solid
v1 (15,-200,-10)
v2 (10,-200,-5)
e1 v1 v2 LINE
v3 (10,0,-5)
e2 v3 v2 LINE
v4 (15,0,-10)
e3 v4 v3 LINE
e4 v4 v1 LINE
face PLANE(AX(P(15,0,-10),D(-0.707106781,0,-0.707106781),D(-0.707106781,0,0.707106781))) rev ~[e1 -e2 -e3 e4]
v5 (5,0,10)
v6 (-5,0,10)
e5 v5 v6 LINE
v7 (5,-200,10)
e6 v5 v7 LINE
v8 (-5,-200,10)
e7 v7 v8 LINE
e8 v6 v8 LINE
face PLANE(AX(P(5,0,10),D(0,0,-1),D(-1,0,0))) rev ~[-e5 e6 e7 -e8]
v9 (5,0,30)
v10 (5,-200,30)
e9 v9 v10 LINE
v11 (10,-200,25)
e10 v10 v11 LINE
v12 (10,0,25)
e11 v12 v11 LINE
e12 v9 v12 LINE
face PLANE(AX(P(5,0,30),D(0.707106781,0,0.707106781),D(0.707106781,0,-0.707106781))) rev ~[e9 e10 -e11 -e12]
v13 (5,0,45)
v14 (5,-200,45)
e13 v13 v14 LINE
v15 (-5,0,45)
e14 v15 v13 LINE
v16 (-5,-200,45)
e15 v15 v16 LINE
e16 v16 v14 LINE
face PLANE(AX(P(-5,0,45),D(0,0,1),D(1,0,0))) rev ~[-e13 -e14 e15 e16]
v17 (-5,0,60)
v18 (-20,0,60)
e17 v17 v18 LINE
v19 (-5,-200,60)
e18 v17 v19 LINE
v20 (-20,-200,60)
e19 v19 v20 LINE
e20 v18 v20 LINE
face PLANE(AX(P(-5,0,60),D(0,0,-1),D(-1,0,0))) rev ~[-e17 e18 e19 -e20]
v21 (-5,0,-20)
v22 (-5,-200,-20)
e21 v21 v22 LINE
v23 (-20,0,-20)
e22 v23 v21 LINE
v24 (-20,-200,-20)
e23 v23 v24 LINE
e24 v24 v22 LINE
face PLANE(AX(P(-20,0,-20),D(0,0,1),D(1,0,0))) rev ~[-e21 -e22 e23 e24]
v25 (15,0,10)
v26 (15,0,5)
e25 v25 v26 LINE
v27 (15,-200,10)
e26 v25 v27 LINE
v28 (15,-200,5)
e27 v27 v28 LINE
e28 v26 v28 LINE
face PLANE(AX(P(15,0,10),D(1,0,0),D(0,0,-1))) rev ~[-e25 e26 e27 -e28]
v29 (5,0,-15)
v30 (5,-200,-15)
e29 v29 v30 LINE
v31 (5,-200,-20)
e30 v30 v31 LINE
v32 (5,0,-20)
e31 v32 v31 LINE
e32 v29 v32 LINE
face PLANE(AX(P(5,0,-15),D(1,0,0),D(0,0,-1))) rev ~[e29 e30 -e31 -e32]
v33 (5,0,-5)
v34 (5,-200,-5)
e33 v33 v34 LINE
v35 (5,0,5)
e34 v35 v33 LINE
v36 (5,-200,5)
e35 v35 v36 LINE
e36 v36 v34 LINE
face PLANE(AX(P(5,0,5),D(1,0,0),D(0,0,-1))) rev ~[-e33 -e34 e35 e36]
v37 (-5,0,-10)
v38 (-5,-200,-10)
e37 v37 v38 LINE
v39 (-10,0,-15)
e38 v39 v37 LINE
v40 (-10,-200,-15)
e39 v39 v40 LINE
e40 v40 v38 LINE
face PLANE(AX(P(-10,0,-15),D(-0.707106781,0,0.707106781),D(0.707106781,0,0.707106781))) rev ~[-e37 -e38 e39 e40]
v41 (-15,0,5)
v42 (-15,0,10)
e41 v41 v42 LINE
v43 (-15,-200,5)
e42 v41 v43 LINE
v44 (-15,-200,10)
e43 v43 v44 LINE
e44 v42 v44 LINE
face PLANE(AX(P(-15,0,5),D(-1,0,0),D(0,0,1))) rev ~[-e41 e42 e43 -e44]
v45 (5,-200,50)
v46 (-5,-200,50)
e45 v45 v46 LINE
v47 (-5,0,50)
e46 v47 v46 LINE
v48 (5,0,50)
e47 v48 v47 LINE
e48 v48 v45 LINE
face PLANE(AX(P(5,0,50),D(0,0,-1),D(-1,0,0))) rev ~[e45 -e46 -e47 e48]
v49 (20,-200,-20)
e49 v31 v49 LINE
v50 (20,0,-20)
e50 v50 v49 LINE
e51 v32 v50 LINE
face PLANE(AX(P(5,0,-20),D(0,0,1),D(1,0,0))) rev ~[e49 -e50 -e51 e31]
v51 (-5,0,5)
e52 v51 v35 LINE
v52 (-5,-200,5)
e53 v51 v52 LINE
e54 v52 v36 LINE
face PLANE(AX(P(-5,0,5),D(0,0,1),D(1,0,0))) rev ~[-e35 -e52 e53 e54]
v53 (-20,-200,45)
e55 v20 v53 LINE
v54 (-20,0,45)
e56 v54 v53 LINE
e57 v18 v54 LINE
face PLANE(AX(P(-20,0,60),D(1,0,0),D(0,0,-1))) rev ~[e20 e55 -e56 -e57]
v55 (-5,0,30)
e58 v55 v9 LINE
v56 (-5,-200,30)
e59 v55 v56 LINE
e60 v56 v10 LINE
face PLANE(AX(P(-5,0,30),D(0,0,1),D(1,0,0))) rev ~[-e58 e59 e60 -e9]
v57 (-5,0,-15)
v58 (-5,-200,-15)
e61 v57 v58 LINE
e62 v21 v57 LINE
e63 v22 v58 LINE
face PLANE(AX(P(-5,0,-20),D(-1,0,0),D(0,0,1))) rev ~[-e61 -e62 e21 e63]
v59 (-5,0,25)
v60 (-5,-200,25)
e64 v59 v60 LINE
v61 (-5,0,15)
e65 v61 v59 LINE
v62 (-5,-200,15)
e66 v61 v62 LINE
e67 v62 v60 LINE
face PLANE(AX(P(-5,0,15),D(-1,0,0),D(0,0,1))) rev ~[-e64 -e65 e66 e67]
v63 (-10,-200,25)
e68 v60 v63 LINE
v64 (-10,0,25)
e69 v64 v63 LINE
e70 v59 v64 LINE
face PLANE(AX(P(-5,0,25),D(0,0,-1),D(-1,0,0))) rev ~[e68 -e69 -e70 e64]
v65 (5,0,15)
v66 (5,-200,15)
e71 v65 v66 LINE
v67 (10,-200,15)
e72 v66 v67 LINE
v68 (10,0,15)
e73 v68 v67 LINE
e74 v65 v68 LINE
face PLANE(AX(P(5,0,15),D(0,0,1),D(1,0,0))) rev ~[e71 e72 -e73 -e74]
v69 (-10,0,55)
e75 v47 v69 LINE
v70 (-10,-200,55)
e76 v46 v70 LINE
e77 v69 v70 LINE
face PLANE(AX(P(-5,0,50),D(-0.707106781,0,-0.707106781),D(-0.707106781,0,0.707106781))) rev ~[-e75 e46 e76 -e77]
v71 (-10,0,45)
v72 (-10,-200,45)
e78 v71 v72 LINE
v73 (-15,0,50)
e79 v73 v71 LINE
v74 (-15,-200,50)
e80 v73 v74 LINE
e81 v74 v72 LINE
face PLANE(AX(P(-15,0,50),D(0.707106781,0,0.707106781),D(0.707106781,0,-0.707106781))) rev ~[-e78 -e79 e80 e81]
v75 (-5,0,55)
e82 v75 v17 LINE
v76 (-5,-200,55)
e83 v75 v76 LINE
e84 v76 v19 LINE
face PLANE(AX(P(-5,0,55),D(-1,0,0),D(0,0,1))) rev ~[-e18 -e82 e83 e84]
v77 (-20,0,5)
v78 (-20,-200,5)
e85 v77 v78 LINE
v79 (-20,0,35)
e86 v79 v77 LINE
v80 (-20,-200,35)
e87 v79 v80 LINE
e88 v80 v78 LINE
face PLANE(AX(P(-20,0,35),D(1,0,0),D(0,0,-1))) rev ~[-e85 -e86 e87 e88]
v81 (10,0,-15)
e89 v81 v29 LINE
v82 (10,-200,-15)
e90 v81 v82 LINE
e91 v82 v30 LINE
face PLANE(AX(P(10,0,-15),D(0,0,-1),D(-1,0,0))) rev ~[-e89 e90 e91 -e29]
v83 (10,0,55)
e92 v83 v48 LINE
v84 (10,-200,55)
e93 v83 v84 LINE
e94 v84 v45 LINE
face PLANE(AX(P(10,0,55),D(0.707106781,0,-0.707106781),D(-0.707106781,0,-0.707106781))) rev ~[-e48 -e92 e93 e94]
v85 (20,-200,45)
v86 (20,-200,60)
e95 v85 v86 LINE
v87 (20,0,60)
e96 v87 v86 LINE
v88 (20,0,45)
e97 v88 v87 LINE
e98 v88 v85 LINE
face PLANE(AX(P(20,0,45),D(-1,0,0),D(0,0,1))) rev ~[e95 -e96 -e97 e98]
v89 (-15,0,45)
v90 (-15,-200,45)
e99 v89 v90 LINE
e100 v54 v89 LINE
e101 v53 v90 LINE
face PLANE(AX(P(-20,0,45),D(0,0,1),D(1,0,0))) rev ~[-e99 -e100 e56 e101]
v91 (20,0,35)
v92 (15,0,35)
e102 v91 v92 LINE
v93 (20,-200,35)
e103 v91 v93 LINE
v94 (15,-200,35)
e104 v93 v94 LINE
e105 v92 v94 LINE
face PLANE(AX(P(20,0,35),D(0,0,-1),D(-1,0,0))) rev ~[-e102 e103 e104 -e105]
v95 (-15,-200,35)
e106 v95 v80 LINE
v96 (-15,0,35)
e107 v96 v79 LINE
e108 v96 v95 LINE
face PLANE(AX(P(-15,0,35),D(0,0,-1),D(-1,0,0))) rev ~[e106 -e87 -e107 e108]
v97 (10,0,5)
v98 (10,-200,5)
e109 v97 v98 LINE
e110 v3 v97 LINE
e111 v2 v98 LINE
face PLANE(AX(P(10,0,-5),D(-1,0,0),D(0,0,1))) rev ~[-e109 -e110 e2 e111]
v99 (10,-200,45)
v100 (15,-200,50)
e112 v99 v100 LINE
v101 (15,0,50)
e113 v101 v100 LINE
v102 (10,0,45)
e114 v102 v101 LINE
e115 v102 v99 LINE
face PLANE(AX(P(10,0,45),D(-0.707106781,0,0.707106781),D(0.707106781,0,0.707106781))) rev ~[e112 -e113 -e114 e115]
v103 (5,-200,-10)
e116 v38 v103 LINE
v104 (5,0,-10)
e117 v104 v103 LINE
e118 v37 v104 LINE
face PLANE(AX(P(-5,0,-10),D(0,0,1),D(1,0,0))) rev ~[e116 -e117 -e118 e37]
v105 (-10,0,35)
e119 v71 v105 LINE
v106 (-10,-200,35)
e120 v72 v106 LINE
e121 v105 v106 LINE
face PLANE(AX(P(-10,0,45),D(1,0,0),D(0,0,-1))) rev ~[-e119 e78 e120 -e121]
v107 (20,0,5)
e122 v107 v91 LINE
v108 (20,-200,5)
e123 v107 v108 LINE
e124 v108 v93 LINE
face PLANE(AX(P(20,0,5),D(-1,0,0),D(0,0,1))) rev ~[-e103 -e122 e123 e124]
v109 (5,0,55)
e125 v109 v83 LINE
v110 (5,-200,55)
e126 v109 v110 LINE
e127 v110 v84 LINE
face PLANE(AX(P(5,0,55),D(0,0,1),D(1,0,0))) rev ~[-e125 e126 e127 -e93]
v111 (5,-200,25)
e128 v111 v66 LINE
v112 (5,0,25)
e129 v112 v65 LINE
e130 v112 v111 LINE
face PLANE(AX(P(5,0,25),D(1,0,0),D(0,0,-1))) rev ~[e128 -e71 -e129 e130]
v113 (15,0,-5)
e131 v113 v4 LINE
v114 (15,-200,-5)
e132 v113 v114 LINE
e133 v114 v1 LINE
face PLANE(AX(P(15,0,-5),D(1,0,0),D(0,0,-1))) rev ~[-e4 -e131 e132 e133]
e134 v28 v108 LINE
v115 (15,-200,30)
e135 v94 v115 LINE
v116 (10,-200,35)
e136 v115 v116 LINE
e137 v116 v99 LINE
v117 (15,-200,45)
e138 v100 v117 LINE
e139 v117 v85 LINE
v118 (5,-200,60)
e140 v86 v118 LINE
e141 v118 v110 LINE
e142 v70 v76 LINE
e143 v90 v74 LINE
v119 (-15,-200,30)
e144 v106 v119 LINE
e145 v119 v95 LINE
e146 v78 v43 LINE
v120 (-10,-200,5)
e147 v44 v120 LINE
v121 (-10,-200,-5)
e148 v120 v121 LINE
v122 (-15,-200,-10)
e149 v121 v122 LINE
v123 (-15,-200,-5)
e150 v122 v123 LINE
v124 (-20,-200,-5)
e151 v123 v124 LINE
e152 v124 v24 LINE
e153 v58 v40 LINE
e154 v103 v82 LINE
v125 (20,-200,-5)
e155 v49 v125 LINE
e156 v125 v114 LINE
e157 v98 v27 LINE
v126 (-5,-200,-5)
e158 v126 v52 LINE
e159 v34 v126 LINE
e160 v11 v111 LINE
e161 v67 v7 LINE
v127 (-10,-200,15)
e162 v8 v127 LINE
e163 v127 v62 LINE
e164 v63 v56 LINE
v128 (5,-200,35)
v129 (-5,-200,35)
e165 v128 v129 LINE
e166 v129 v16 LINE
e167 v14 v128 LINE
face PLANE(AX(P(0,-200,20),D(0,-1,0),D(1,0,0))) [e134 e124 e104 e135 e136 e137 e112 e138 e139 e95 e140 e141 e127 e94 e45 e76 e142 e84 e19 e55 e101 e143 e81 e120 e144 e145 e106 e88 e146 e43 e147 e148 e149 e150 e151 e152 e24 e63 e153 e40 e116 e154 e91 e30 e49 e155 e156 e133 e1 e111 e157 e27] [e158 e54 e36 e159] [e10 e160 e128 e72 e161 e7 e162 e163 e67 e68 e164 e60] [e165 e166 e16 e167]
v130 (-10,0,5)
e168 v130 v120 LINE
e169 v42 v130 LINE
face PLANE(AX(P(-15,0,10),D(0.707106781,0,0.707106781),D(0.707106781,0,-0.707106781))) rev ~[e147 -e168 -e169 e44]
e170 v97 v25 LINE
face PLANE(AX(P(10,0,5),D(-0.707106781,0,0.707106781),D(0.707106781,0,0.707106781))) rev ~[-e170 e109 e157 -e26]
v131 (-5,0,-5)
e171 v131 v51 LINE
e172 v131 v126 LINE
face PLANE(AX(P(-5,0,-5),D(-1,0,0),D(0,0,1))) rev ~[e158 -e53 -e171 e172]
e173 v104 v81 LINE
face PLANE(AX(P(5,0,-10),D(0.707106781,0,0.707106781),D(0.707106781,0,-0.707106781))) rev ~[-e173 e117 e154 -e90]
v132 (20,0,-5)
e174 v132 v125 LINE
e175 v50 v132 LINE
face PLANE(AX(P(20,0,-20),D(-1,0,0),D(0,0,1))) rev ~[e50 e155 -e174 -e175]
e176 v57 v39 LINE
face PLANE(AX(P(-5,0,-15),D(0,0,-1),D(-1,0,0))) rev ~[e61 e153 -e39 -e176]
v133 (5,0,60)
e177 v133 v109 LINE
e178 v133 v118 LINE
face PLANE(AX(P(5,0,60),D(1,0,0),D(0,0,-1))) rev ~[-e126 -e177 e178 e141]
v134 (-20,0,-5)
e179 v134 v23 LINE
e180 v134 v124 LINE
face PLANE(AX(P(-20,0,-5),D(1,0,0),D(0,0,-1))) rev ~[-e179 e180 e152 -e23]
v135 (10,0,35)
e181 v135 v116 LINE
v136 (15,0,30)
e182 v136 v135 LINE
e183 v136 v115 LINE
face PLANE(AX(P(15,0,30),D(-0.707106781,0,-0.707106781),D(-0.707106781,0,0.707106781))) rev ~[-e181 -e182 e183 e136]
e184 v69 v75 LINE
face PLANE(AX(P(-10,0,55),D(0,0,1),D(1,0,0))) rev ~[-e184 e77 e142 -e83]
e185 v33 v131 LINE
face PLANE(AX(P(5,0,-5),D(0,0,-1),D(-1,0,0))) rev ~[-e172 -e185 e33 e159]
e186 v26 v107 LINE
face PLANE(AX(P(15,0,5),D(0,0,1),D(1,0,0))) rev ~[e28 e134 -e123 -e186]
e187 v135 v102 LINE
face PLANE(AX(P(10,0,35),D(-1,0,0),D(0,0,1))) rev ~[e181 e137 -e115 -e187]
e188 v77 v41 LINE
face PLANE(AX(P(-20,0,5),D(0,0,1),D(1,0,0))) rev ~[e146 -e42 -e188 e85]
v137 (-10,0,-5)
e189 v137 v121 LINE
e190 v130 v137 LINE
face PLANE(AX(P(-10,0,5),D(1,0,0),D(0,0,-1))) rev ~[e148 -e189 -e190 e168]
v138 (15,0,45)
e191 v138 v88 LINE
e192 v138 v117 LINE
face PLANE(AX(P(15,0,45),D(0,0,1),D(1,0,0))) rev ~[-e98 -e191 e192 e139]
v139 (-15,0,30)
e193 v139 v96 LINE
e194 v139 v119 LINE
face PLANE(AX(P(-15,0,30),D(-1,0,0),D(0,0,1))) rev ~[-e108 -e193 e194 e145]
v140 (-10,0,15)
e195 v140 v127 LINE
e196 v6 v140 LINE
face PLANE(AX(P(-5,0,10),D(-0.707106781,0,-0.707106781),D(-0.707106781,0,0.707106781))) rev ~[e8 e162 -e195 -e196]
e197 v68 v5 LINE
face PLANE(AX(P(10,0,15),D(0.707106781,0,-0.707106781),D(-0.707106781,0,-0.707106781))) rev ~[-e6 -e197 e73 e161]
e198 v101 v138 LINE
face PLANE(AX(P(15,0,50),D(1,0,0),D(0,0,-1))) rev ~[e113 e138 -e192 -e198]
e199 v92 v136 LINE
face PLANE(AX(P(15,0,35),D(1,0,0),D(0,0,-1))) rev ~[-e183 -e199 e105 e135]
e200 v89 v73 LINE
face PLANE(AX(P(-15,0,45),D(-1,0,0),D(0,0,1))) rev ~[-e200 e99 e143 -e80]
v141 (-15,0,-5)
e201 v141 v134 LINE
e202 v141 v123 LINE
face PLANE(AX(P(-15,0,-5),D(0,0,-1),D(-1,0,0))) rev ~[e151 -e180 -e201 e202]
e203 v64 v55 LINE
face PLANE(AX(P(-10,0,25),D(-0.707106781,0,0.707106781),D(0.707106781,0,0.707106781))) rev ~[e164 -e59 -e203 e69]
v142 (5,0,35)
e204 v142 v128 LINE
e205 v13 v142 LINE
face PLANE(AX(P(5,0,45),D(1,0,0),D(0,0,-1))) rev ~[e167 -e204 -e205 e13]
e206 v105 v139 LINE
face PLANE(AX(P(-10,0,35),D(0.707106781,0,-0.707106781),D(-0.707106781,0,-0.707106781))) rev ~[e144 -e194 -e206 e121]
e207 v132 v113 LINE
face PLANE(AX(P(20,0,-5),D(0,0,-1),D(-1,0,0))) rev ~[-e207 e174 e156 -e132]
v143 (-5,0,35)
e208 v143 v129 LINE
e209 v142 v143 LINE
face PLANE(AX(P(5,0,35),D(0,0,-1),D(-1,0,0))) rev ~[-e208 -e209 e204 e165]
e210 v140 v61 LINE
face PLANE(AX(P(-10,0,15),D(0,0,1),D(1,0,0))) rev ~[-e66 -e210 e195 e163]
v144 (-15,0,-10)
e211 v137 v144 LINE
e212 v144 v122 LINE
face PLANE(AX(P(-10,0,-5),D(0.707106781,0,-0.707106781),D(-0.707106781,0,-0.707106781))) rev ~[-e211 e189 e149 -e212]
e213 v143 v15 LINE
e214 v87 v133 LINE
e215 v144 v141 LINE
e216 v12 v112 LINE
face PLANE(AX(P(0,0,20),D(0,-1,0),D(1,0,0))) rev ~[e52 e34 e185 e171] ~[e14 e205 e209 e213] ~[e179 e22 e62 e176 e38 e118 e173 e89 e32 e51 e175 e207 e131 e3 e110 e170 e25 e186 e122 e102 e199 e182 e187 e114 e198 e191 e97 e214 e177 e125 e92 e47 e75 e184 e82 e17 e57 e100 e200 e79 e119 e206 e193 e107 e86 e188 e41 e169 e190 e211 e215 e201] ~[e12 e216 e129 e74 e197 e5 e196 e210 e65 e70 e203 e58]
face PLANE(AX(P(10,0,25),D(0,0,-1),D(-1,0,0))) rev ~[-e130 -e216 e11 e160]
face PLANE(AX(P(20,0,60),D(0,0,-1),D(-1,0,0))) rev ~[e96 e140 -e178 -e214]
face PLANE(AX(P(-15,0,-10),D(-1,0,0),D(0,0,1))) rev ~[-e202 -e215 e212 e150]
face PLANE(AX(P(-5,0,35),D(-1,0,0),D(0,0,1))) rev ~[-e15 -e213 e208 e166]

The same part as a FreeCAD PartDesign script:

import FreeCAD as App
import Part
import Sketcher
from FreeCAD import Vector
Q = App.Units.Quantity


def add_polygon(sketch, points):
    """Adds a closed chain of lines whose ends are joined by coincident constraints."""
    first, n = sketch.GeometryCount, len(points)
    for a, b in zip(points, points[1:] + points[:1]):
        sketch.addGeometry(Part.LineSegment(App.Vector(*a, 0), App.Vector(*b, 0)), False)
    for i in range(n):
        sketch.addConstraint(Sketcher.Constraint("Coincident", first + i, 2, first + (i + 1) % n, 1))

doc = App.newDocument("Part")
params = doc.addObject("Spreadsheet::Sheet", "Params")
for row, (alias, value) in enumerate([
    ("sketch1_width", "15 mm"),
    ("sketch1_width2", "10 mm"),
    ("pad1_length", "200 mm"),
], start=1):
    params.set(f"A{row}", alias)
    params.set(f"B{row}", "=" + value)
    params.setAlias(f"B{row}", alias)

body = doc.addObject("PartDesign::Body", "Body")

# Sketch on XZ plane
sketch1 = body.newObject("Sketcher::SketchObject", "Sketch")
sketch1.AttachmentSupport = (doc.getObject("XZ_Plane"), [""])
sketch1.MapMode = "FlatFace"
add_polygon(sketch1, [(5, -20), (20, -20), (20, -5), (15, -5), (15, -10), (10, -5), (10, 5), (15, 10), (15, 5), (20, 5), (20, 35), (15, 35), (15, 30), (10, 35), (10, 45), (15, 50), (15, 45), (20, 45), (20, 60), (5, 60), (5, 55), (10, 55), (5, 50), (-5, 50), (-10, 55), (-5, 55), (-5, 60), (-20, 60), (-20, 45), (-15, 45), (-15, 50), (-10, 45), (-10, 35), (-15, 30), (-15, 35), (-20, 35), (-20, 5), (-15, 5), (-15, 10), (-10, 5), (-10, -5), (-15, -10), (-15, -5), (-20, -5), (-20, -20), (-5, -20), (-5, -15), (-10, -15), (-5, -10), (5, -10), (10, -15), (5, -15)])  # lines 0-51
add_polygon(sketch1, [(-5, -5), (-5, 5), (5, 5), (5, -5)])  # lines 52-55
add_polygon(sketch1, [(-10, 15), (-5, 15), (-5, 25), (-10, 25), (-5, 30), (5, 30), (10, 25), (5, 25), (5, 15), (10, 15), (5, 10), (-5, 10)])  # lines 56-67
add_polygon(sketch1, [(-5, 35), (-5, 45), (5, 45), (5, 35)])  # lines 68-71
sketch1.addConstraint(Sketcher.Constraint("Horizontal", 0))
sketch1.addConstraint(Sketcher.Constraint("Vertical", 1))
sketch1.addConstraint(Sketcher.Constraint("Horizontal", 2))
sketch1.addConstraint(Sketcher.Constraint("Vertical", 3))
sketch1.addConstraint(Sketcher.Constraint("Vertical", 5))
sketch1.addConstraint(Sketcher.Constraint("Vertical", 7))
sketch1.addConstraint(Sketcher.Constraint("Horizontal", 8))
sketch1.addConstraint(Sketcher.Constraint("Vertical", 9))
sketch1.addConstraint(Sketcher.Constraint("Horizontal", 10))
sketch1.addConstraint(Sketcher.Constraint("Vertical", 11))
sketch1.addConstraint(Sketcher.Constraint("Vertical", 13))
sketch1.addConstraint(Sketcher.Constraint("Vertical", 15))
sketch1.addConstraint(Sketcher.Constraint("Horizontal", 16))
sketch1.addConstraint(Sketcher.Constraint("Vertical", 17))
sketch1.addConstraint(Sketcher.Constraint("Horizontal", 18))
sketch1.addConstraint(Sketcher.Constraint("Vertical", 19))
sketch1.addConstraint(Sketcher.Constraint("Horizontal", 20))
sketch1.addConstraint(Sketcher.Constraint("Horizontal", 22))
sketch1.addConstraint(Sketcher.Constraint("Horizontal", 24))
sketch1.addConstraint(Sketcher.Constraint("Vertical", 25))
sketch1.addConstraint(Sketcher.Constraint("Horizontal", 26))
sketch1.addConstraint(Sketcher.Constraint("Vertical", 27))
sketch1.addConstraint(Sketcher.Constraint("Horizontal", 28))
sketch1.addConstraint(Sketcher.Constraint("Vertical", 29))
sketch1.addConstraint(Sketcher.Constraint("Vertical", 31))
sketch1.addConstraint(Sketcher.Constraint("Vertical", 33))
sketch1.addConstraint(Sketcher.Constraint("Horizontal", 34))
sketch1.addConstraint(Sketcher.Constraint("Vertical", 35))
sketch1.addConstraint(Sketcher.Constraint("Horizontal", 36))
sketch1.addConstraint(Sketcher.Constraint("Vertical", 37))
sketch1.addConstraint(Sketcher.Constraint("Vertical", 39))
sketch1.addConstraint(Sketcher.Constraint("Vertical", 41))
sketch1.addConstraint(Sketcher.Constraint("Horizontal", 42))
sketch1.addConstraint(Sketcher.Constraint("Vertical", 43))
sketch1.addConstraint(Sketcher.Constraint("Horizontal", 44))
sketch1.addConstraint(Sketcher.Constraint("Vertical", 45))
sketch1.addConstraint(Sketcher.Constraint("Horizontal", 46))
sketch1.addConstraint(Sketcher.Constraint("Horizontal", 48))
sketch1.addConstraint(Sketcher.Constraint("Horizontal", 50))
sketch1.addConstraint(Sketcher.Constraint("Vertical", 51))
sketch1.addConstraint(Sketcher.Constraint("Vertical", 52))
sketch1.addConstraint(Sketcher.Constraint("Horizontal", 53))
sketch1.addConstraint(Sketcher.Constraint("Vertical", 54))
sketch1.addConstraint(Sketcher.Constraint("Horizontal", 55))
sketch1.addConstraint(Sketcher.Constraint("Horizontal", 56))
sketch1.addConstraint(Sketcher.Constraint("Vertical", 57))
sketch1.addConstraint(Sketcher.Constraint("Horizontal", 58))
sketch1.addConstraint(Sketcher.Constraint("Horizontal", 60))
sketch1.addConstraint(Sketcher.Constraint("Horizontal", 62))
sketch1.addConstraint(Sketcher.Constraint("Vertical", 63))
sketch1.addConstraint(Sketcher.Constraint("Horizontal", 64))
sketch1.addConstraint(Sketcher.Constraint("Horizontal", 66))
sketch1.addConstraint(Sketcher.Constraint("Vertical", 68))
sketch1.addConstraint(Sketcher.Constraint("Horizontal", 69))
sketch1.addConstraint(Sketcher.Constraint("Vertical", 70))
sketch1.addConstraint(Sketcher.Constraint("Horizontal", 71))
sketch1.addConstraint(Sketcher.Constraint("Symmetric", 1, 2, 35, 2, -1, 1))
sketch1.addConstraint(Sketcher.Constraint("Symmetric", 3, 2, 37, 2, -1, 1))
sketch1.addConstraint(Sketcher.Constraint("Symmetric", 4, 2, 38, 2, -1, 1))
sketch1.addConstraint(Sketcher.Constraint("Symmetric", 6, 2, 40, 2, -1, 1))
sketch1.addConstraint(Sketcher.Constraint("Symmetric", 8, 2, 42, 2, -1, 1))
sketch1.addConstraint(Sketcher.Constraint("Symmetric", 52, 2, 54, 2, -1, 1))
sketch1.addConstraint(Sketcher.Constraint("Symmetric", 50, 2, 56, 2, -1, 1))
sketch1.addConstraint(Sketcher.Constraint("Symmetric", 45, 2, 63, 2, -1, 1))
sketch1.addConstraint(Sketcher.Constraint("Symmetric", 47, 2, 65, 2, -1, 1))
sketch1.addConstraint(Sketcher.Constraint("Symmetric", 20, 2, 23, 2, -2))
sketch1.addConstraint(Sketcher.Constraint("Symmetric", 18, 2, 25, 2, -2))
sketch1.addConstraint(Sketcher.Constraint("Symmetric", 16, 2, 27, 2, -2))
sketch1.addConstraint(Sketcher.Constraint("Symmetric", 14, 2, 29, 2, -2))
sketch1.addConstraint(Sketcher.Constraint("Symmetric", 13, 2, 30, 2, -2))
sketch1.addConstraint(Sketcher.Constraint("Symmetric", 11, 2, 32, 2, -2))
sketch1.addConstraint(Sketcher.Constraint("Symmetric", 9, 2, 34, 2, -2))
sketch1.addConstraint(Sketcher.Constraint("Symmetric", 7, 2, 36, 2, -2))
sketch1.addConstraint(Sketcher.Constraint("Symmetric", 46, 2, 49, 2, -2))
sketch1.addConstraint(Sketcher.Constraint("Symmetric", 44, 2, 51, 2, -2))
sketch1.addConstraint(Sketcher.Constraint("Symmetric", 58, 2, 61, 2, -2))
sketch1.addConstraint(Sketcher.Constraint("Perpendicular", 4, 6))
sketch1.addConstraint(Sketcher.Constraint("Perpendicular", 6, 12))
sketch1.addConstraint(Sketcher.Constraint("Perpendicular", 12, 14))
sketch1.addConstraint(Sketcher.Constraint("Parallel", 14, 21))
sketch1.addConstraint(Sketcher.Constraint("Perpendicular", 21, 23))
sketch1.addConstraint(Sketcher.Constraint("Parallel", 23, 30))
sketch1.addConstraint(Sketcher.Constraint("Perpendicular", 30, 32))
sketch1.addConstraint(Sketcher.Constraint("Perpendicular", 38, 40))
sketch1.addConstraint(Sketcher.Constraint("Parallel", 40, 47))
sketch1.addConstraint(Sketcher.Constraint("Perpendicular", 47, 49))
sketch1.addConstraint(Sketcher.Constraint("Perpendicular", 49, 59))
sketch1.addConstraint(Sketcher.Constraint("Perpendicular", 59, 61))
sketch1.addConstraint(Sketcher.Constraint("Perpendicular", 61, 65))
sketch1.addConstraint(Sketcher.Constraint("Perpendicular", 65, 67))
sketch1.addConstraint(Sketcher.Constraint("Horizontal", 2, 2, 4, 2))
sketch1.addConstraint(Sketcher.Constraint("Horizontal", 5, 2, 7, 2))
sketch1.addConstraint(Sketcher.Constraint("Horizontal", 10, 2, 12, 2))
sketch1.addConstraint(Sketcher.Constraint("Horizontal", 13, 2, 15, 2))
sketch1.addConstraint(Sketcher.Constraint("Horizontal", 14, 2, 21, 2))
sketch1.addConstraint(Sketcher.Constraint("Horizontal", 40, 2, 47, 2))
sketch1.addConstraint(Sketcher.Constraint("Horizontal", 38, 2, 52, 2))
sketch1.addConstraint(Sketcher.Constraint("Horizontal", 32, 2, 59, 2))
sketch1.addConstraint(Sketcher.Constraint("Horizontal", 30, 2, 68, 2))
sketch1.addConstraint(Sketcher.Constraint("Horizontal", 34, 2, 70, 2))
sketch1.addConstraint(Sketcher.Constraint("Vertical", 7, 2, 10, 2))
sketch1.addConstraint(Sketcher.Constraint("Vertical", 5, 2, 12, 2))
sketch1.addConstraint(Sketcher.Constraint("Vertical", 11, 2, 14, 2))
sketch1.addConstraint(Sketcher.Constraint("Vertical", 9, 2, 16, 2))
sketch1.addConstraint(Sketcher.Constraint("Vertical", 13, 2, 20, 2))
sketch1.addConstraint(Sketcher.Constraint("Vertical", 19, 2, 21, 2))
sketch1.addConstraint(Sketcher.Constraint("Vertical", 25, 2, 44, 2))
sketch1.addConstraint(Sketcher.Constraint("Vertical", 39, 2, 46, 2))
sketch1.addConstraint(Sketcher.Constraint("Vertical", 45, 2, 47, 2))
sketch1.addConstraint(Sketcher.Constraint("Vertical", 47, 2, 52, 2))
sketch1.addConstraint(Sketcher.Constraint("Vertical", 46, 2, 58, 2))
sketch1.addConstraint(Sketcher.Constraint("Vertical", 57, 2, 59, 2))
sketch1.addConstraint(Sketcher.Constraint("Vertical", 59, 2, 66, 2))
sketch1.addConstraint(Sketcher.Constraint("Vertical", 66, 2, 68, 2))
sketch1.addConstraint(Sketcher.Constraint("Vertical", 65, 2, 69, 2))
sketch1.addConstraint(Sketcher.Constraint("Equal", 16, 20))
sketch1.addConstraint(Sketcher.Constraint("Equal", 44, 1))
sketch1.addConstraint(Sketcher.Constraint("Equal", 64, 3))
sketch1.addConstraint(Sketcher.Constraint("Equal", 71, 5))
sketch1.addConstraint(Sketcher.Constraint("Equal", 5, 13))
sketch1.addConstraint(Sketcher.Constraint("Equal", 1, 17))
sketch1.addConstraint(Sketcher.Constraint("Equal", 54, 57))
sketch1.addConstraint(Sketcher.Constraint("DistanceX", 0, 1, 0, 2, Q("15 mm")))
sketch1.addConstraint(Sketcher.Constraint("DistanceX", 22, 2, 22, 1, Q("10 mm")))
sketch1.setExpression("Constraints[194]", "Params.sketch1_width")
sketch1.setExpression("Constraints[195]", "Params.sketch1_width2")
pad1 = body.newObject("PartDesign::Pad", "Pad")
pad1.Profile = sketch1
pad1.setExpression("Length", "Params.pad1_length")

doc.recompute()
